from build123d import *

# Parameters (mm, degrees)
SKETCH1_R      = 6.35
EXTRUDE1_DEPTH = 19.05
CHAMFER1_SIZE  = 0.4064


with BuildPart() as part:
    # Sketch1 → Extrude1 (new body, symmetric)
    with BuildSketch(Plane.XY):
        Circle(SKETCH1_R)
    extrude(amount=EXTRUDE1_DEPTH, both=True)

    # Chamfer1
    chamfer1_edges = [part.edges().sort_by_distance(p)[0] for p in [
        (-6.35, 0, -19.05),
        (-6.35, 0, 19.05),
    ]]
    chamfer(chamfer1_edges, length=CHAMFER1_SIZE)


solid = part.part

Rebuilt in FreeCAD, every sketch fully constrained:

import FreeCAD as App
import Part
import Sketcher
Q = App.Units.Quantity


def edges_at(feature, points):
    """Names of the edges that pass closest to the given points."""
    edges = feature.Shape.Edges
    near = lambda p: min(range(len(edges)), key=lambda i: edges[i].distToShape(Part.Vertex(*p))[0])
    return sorted({f"Edge{near(p) + 1}" for p in points})

doc = App.newDocument("Part")
params = doc.addObject("Spreadsheet::Sheet", "Params")
for row, (alias, value) in enumerate([
    ("sketch1_diameter", "0.5 in"),
    ("pad1_length", "1.5 in"),
    ("chamfer_size", "0.016 in"),
], start=1):
    params.set(f"A{row}", alias)
    params.set(f"B{row}", "=" + value)
    params.setAlias(f"B{row}", alias)

body = doc.addObject("PartDesign::Body", "Body")

# Sketch on XY plane
sketch1 = body.newObject("Sketcher::SketchObject", "Sketch")
sketch1.AttachmentSupport = (doc.getObject("XY_Plane"), [""])
sketch1.MapMode = "FlatFace"
sketch1.addGeometry(Part.Circle(App.Vector(0, 0, 0), App.Vector(0, 0, 1), 6), False)
sketch1.addConstraint(Sketcher.Constraint("Coincident", 0, 3, -1, 1))
sketch1.addConstraint(Sketcher.Constraint("Diameter", 0, Q("0.5 in")))
sketch1.setExpression("Constraints[1]", "Params.sketch1_diameter")
pad1 = body.newObject("PartDesign::Pad", "Pad")
pad1.Profile = sketch1
pad1.setExpression("Length", "Params.pad1_length")
pad1.Midplane = True
doc.recompute()

chamfer = body.newObject("PartDesign::Chamfer", "Chamfer")
chamfer.Base = (pad1, edges_at(pad1, [(-6.35, 0, -19.05), (-6.35, 0, 19.05)]))
chamfer.setExpression("Size", "Params.chamfer_size")

doc.recompute()
